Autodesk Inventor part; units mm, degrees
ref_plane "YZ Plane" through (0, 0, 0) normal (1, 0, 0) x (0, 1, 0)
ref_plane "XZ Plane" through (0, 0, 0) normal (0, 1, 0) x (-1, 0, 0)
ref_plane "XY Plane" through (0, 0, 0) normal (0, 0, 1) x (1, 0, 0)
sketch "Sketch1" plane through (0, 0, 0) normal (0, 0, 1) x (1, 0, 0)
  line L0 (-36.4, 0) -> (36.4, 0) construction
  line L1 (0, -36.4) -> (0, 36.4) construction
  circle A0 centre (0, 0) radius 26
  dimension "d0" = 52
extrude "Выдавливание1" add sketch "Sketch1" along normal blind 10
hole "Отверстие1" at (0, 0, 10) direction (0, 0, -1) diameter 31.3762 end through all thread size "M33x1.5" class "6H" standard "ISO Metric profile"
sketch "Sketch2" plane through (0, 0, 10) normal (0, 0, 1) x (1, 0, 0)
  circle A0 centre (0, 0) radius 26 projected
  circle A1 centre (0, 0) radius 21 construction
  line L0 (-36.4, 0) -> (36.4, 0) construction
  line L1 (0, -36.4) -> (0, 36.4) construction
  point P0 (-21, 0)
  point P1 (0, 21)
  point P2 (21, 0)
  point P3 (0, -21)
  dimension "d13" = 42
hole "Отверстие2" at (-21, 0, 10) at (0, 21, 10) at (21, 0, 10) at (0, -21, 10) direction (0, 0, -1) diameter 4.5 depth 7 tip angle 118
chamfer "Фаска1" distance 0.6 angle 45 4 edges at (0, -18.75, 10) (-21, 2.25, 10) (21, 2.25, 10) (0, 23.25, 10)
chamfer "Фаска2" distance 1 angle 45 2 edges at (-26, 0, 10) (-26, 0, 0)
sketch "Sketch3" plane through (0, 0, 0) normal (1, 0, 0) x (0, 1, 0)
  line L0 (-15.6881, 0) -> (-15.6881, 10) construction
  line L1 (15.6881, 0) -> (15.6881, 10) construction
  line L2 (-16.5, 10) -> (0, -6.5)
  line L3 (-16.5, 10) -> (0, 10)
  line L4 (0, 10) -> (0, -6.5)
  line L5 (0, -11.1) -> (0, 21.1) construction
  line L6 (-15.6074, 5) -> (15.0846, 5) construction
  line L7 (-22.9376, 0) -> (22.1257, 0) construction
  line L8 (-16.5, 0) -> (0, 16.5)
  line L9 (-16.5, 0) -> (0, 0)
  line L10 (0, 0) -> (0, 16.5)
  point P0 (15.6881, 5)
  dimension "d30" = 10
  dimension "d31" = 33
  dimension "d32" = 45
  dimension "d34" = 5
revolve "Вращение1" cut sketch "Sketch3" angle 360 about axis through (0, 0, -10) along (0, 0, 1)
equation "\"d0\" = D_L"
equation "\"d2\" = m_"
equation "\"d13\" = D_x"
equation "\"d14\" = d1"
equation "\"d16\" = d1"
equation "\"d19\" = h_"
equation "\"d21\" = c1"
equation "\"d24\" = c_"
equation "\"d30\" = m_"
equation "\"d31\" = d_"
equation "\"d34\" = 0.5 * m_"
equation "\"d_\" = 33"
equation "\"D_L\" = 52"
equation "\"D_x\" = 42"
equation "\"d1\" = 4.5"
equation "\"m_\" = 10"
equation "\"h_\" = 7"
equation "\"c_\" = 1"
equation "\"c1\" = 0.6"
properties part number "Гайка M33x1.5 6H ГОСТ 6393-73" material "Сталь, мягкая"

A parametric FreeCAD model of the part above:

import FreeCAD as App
import Part
import Sketcher
Q = App.Units.Quantity


def edges_at(feature, points):
    """Names of the edges that pass closest to the given points."""
    edges = feature.Shape.Edges
    near = lambda p: min(range(len(edges)), key=lambda i: edges[i].distToShape(Part.Vertex(*p))[0])
    return sorted({f"Edge{near(p) + 1}" for p in points})

doc = App.newDocument("Part")
params = doc.addObject("Spreadsheet::Sheet", "Params")
for row, (alias, value) in enumerate([
    ("sketch1_diameter", "52 mm"),
    ("pad1_length", "10 mm"),
    ("hole_diameter", "31.3762 mm"),
    ("sketch3_diameter", "4.5 mm"),
    ("hole2_diameter", "4.5 mm"),
    ("hole2_depth", "7 mm"),
    ("chamfer_size", "0.6 mm"),
    ("chamfer2_size", "1 mm"),
    ("sketch4_width", "10 mm"),
    ("sketch4_height", "23 mm"),
    ("groove_angle", "360 deg"),
], start=1):
    params.set(f"A{row}", alias)
    params.set(f"B{row}", "=" + value)
    params.setAlias(f"B{row}", alias)

body = doc.addObject("PartDesign::Body", "Body")

# Sketch on XY plane
sketch1 = doc.addObject("Sketcher::SketchObject", "Sketch")
body.addObject(sketch1)
sketch1.AttachmentSupport = (doc.XY_Plane, [""])
sketch1.MapMode = "FlatFace"
sketch1.addGeometry(Part.Circle(App.Vector(0, 0, 0), App.Vector(0, 0, 1), 26), False)
sketch1.addConstraint([
    Sketcher.Constraint("Coincident", 0, 3, -1, 1),
    Sketcher.Constraint("Diameter", 0, Q("52 mm")),
])
sketch1.setExpression("Constraints[1]", "Params.sketch1_diameter")
pad1 = doc.addObject("PartDesign::Pad", "Pad")
body.addObject(pad1)
pad1.Profile = sketch1
pad1.setExpression("Length", "Params.pad1_length")

# Sketch on XY plane
sketch2 = doc.addObject("Sketcher::SketchObject", "Sketch001")
body.addObject(sketch2)
sketch2.AttachmentSupport = (doc.XY_Plane, [""])
sketch2.MapMode = "FlatFace"
sketch2.AttachmentOffset = App.Placement(App.Vector(0, 0, 10), App.Rotation())
sketch2.addGeometry(Part.Circle(App.Vector(0, 0, 0), App.Vector(0, 0, 1), 16), False)
sketch2.addConstraint([
    Sketcher.Constraint("Coincident", 0, 3, -1, 1),
    Sketcher.Constraint("Diameter", 0, Q("31.3762 mm")),
])
doc.recompute()
hole = doc.addObject("PartDesign::Hole", "Hole")
body.addObject(hole)
hole.Profile = sketch2
hole.ThreadType = "None"
hole.setExpression("Diameter", "Params.hole_diameter")
hole.DepthType = "ThroughAll"

# Sketch on XY plane
sketch3 = doc.addObject("Sketcher::SketchObject", "Sketch002")
body.addObject(sketch3)
sketch3.AttachmentSupport = (doc.XY_Plane, [""])
sketch3.MapMode = "FlatFace"
sketch3.AttachmentOffset = App.Placement(App.Vector(0, 0, 10), App.Rotation())
sketch3.addGeometry([
    Part.Circle(App.Vector(-21, 0, 0), App.Vector(0, 0, 1), 2.2),
    Part.Circle(App.Vector(0, 21, 0), App.Vector(0, 0, 1), 2.2),
    Part.Circle(App.Vector(21, 0, 0), App.Vector(0, 0, 1), 2.2),
    Part.Circle(App.Vector(0, -21, 0), App.Vector(0, 0, 1), 2.2),
], False)
sketch3.addConstraint([
    Sketcher.Constraint("Equal", 0, 1),
    Sketcher.Constraint("Equal", 1, 2),
    Sketcher.Constraint("Equal", 2, 3),
    Sketcher.Constraint("Symmetric", 0, 3, 2, 3, -1, 1),
    Sketcher.Constraint("Symmetric", 1, 3, 3, 3, -1, 1),
    Sketcher.Constraint("PointOnObject", 0, 3, -1),
    Sketcher.Constraint("PointOnObject", 1, 3, -2),
    Sketcher.Constraint("Diameter", 0, Q("4.5 mm")),
    Sketcher.Constraint("DistanceX", 0, 3, -1, 1, Q("21 mm")),
    Sketcher.Constraint("DistanceY", -1, 1, 1, 3, Q("21 mm")),
])
sketch3.setExpression("Constraints[7]", "Params.sketch3_diameter")
doc.recompute()
hole2 = doc.addObject("PartDesign::Hole", "Hole001")
body.addObject(hole2)
hole2.Profile = sketch3
hole2.ThreadType = "None"
hole2.setExpression("Diameter", "Params.hole2_diameter")
hole2.DepthType = "Dimension"
hole2.setExpression("Depth", "Params.hole2_depth")
hole2.DrillPoint = "Angled"
hole2.DrillPointAngle = 118
doc.recompute()

chamfer = doc.addObject("PartDesign::Chamfer", "Chamfer")
body.addObject(chamfer)
chamfer.Base = (hole2, edges_at(hole2, [
    (0, -18.75, 10),
    (-21, 2.25, 10),
    (21, 2.25, 10),
    (0, 23.25, 10),
]))
chamfer.setExpression("Size", "Params.chamfer_size")
doc.recompute()

chamfer2 = doc.addObject("PartDesign::Chamfer", "Chamfer001")
body.addObject(chamfer2)
chamfer2.Base = (chamfer, edges_at(chamfer, [(-26, 0, 10), (-26, 0, 0)]))
chamfer2.setExpression("Size", "Params.chamfer2_size")

# Sketch on YZ plane
sketch4 = doc.addObject("Sketcher::SketchObject", "Sketch003")
body.addObject(sketch4)
sketch4.AttachmentSupport = (doc.YZ_Plane, [""])
sketch4.MapMode = "FlatFace"
sketch4.addGeometry([
    Part.LineSegment(App.Vector(-6, 10, 0), App.Vector(-16, 10, 0)),  # 0
    Part.LineSegment(App.Vector(-16, 10, 0), App.Vector(-12, 5, 0)),  # 1
    Part.LineSegment(App.Vector(-12, 5, 0), App.Vector(-16, 0, 0)),  # 2
    Part.LineSegment(App.Vector(-16, 0, 0), App.Vector(-6, 0, 0)),  # 3
    Part.LineSegment(App.Vector(-6, 0, 0), App.Vector(0, -6, 0)),  # 4
    Part.LineSegment(App.Vector(0, -6, 0), App.Vector(0, 16, 0)),  # 5
    Part.LineSegment(App.Vector(0, 16, 0), App.Vector(-6, 10, 0)),  # 6
], False)
sketch4.addConstraint([
    Sketcher.Constraint("Coincident", 0, 2, 1, 1),
    Sketcher.Constraint("Coincident", 1, 2, 2, 1),
    Sketcher.Constraint("Coincident", 2, 2, 3, 1),
    Sketcher.Constraint("Coincident", 3, 2, 4, 1),
    Sketcher.Constraint("Coincident", 4, 2, 5, 1),
    Sketcher.Constraint("Coincident", 5, 2, 6, 1),
    Sketcher.Constraint("Coincident", 6, 2, 0, 1),
    Sketcher.Constraint("Horizontal", 0),
    Sketcher.Constraint("Horizontal", 3),
    Sketcher.Constraint("Vertical", 5),
    Sketcher.Constraint("PointOnObject", 2, 2, -1),
    Sketcher.Constraint("PointOnObject", 4, 2, -2),
    Sketcher.Constraint("Perpendicular", 1, 2),
    Sketcher.Constraint("Perpendicular", 2, 4),
    Sketcher.Constraint("Perpendicular", 4, 6),
    Sketcher.Constraint("Vertical", 0, 2, 2, 2),
    Sketcher.Constraint("Vertical", 3, 2, 6, 2),
    Sketcher.Constraint("Equal", 1, 2),
    Sketcher.Constraint("DistanceX", 0, 2, 0, 1, Q("10 mm")),
    Sketcher.Constraint("DistanceY", -1, 1, 0, 2, Q("10 mm")),
    Sketcher.Constraint("DistanceY", 5, 1, 5, 2, Q("23 mm")),
])
sketch4.setExpression("Constraints[18]", "Params.sketch4_width")
sketch4.setExpression("Constraints[20]", "Params.sketch4_height")
groove = doc.addObject("PartDesign::Groove", "Groove")
body.addObject(groove)
groove.Profile = sketch4
groove.ReferenceAxis = (sketch4, ["V_Axis"])
groove.setExpression("Angle", "Params.groove_angle")

doc.recompute()
